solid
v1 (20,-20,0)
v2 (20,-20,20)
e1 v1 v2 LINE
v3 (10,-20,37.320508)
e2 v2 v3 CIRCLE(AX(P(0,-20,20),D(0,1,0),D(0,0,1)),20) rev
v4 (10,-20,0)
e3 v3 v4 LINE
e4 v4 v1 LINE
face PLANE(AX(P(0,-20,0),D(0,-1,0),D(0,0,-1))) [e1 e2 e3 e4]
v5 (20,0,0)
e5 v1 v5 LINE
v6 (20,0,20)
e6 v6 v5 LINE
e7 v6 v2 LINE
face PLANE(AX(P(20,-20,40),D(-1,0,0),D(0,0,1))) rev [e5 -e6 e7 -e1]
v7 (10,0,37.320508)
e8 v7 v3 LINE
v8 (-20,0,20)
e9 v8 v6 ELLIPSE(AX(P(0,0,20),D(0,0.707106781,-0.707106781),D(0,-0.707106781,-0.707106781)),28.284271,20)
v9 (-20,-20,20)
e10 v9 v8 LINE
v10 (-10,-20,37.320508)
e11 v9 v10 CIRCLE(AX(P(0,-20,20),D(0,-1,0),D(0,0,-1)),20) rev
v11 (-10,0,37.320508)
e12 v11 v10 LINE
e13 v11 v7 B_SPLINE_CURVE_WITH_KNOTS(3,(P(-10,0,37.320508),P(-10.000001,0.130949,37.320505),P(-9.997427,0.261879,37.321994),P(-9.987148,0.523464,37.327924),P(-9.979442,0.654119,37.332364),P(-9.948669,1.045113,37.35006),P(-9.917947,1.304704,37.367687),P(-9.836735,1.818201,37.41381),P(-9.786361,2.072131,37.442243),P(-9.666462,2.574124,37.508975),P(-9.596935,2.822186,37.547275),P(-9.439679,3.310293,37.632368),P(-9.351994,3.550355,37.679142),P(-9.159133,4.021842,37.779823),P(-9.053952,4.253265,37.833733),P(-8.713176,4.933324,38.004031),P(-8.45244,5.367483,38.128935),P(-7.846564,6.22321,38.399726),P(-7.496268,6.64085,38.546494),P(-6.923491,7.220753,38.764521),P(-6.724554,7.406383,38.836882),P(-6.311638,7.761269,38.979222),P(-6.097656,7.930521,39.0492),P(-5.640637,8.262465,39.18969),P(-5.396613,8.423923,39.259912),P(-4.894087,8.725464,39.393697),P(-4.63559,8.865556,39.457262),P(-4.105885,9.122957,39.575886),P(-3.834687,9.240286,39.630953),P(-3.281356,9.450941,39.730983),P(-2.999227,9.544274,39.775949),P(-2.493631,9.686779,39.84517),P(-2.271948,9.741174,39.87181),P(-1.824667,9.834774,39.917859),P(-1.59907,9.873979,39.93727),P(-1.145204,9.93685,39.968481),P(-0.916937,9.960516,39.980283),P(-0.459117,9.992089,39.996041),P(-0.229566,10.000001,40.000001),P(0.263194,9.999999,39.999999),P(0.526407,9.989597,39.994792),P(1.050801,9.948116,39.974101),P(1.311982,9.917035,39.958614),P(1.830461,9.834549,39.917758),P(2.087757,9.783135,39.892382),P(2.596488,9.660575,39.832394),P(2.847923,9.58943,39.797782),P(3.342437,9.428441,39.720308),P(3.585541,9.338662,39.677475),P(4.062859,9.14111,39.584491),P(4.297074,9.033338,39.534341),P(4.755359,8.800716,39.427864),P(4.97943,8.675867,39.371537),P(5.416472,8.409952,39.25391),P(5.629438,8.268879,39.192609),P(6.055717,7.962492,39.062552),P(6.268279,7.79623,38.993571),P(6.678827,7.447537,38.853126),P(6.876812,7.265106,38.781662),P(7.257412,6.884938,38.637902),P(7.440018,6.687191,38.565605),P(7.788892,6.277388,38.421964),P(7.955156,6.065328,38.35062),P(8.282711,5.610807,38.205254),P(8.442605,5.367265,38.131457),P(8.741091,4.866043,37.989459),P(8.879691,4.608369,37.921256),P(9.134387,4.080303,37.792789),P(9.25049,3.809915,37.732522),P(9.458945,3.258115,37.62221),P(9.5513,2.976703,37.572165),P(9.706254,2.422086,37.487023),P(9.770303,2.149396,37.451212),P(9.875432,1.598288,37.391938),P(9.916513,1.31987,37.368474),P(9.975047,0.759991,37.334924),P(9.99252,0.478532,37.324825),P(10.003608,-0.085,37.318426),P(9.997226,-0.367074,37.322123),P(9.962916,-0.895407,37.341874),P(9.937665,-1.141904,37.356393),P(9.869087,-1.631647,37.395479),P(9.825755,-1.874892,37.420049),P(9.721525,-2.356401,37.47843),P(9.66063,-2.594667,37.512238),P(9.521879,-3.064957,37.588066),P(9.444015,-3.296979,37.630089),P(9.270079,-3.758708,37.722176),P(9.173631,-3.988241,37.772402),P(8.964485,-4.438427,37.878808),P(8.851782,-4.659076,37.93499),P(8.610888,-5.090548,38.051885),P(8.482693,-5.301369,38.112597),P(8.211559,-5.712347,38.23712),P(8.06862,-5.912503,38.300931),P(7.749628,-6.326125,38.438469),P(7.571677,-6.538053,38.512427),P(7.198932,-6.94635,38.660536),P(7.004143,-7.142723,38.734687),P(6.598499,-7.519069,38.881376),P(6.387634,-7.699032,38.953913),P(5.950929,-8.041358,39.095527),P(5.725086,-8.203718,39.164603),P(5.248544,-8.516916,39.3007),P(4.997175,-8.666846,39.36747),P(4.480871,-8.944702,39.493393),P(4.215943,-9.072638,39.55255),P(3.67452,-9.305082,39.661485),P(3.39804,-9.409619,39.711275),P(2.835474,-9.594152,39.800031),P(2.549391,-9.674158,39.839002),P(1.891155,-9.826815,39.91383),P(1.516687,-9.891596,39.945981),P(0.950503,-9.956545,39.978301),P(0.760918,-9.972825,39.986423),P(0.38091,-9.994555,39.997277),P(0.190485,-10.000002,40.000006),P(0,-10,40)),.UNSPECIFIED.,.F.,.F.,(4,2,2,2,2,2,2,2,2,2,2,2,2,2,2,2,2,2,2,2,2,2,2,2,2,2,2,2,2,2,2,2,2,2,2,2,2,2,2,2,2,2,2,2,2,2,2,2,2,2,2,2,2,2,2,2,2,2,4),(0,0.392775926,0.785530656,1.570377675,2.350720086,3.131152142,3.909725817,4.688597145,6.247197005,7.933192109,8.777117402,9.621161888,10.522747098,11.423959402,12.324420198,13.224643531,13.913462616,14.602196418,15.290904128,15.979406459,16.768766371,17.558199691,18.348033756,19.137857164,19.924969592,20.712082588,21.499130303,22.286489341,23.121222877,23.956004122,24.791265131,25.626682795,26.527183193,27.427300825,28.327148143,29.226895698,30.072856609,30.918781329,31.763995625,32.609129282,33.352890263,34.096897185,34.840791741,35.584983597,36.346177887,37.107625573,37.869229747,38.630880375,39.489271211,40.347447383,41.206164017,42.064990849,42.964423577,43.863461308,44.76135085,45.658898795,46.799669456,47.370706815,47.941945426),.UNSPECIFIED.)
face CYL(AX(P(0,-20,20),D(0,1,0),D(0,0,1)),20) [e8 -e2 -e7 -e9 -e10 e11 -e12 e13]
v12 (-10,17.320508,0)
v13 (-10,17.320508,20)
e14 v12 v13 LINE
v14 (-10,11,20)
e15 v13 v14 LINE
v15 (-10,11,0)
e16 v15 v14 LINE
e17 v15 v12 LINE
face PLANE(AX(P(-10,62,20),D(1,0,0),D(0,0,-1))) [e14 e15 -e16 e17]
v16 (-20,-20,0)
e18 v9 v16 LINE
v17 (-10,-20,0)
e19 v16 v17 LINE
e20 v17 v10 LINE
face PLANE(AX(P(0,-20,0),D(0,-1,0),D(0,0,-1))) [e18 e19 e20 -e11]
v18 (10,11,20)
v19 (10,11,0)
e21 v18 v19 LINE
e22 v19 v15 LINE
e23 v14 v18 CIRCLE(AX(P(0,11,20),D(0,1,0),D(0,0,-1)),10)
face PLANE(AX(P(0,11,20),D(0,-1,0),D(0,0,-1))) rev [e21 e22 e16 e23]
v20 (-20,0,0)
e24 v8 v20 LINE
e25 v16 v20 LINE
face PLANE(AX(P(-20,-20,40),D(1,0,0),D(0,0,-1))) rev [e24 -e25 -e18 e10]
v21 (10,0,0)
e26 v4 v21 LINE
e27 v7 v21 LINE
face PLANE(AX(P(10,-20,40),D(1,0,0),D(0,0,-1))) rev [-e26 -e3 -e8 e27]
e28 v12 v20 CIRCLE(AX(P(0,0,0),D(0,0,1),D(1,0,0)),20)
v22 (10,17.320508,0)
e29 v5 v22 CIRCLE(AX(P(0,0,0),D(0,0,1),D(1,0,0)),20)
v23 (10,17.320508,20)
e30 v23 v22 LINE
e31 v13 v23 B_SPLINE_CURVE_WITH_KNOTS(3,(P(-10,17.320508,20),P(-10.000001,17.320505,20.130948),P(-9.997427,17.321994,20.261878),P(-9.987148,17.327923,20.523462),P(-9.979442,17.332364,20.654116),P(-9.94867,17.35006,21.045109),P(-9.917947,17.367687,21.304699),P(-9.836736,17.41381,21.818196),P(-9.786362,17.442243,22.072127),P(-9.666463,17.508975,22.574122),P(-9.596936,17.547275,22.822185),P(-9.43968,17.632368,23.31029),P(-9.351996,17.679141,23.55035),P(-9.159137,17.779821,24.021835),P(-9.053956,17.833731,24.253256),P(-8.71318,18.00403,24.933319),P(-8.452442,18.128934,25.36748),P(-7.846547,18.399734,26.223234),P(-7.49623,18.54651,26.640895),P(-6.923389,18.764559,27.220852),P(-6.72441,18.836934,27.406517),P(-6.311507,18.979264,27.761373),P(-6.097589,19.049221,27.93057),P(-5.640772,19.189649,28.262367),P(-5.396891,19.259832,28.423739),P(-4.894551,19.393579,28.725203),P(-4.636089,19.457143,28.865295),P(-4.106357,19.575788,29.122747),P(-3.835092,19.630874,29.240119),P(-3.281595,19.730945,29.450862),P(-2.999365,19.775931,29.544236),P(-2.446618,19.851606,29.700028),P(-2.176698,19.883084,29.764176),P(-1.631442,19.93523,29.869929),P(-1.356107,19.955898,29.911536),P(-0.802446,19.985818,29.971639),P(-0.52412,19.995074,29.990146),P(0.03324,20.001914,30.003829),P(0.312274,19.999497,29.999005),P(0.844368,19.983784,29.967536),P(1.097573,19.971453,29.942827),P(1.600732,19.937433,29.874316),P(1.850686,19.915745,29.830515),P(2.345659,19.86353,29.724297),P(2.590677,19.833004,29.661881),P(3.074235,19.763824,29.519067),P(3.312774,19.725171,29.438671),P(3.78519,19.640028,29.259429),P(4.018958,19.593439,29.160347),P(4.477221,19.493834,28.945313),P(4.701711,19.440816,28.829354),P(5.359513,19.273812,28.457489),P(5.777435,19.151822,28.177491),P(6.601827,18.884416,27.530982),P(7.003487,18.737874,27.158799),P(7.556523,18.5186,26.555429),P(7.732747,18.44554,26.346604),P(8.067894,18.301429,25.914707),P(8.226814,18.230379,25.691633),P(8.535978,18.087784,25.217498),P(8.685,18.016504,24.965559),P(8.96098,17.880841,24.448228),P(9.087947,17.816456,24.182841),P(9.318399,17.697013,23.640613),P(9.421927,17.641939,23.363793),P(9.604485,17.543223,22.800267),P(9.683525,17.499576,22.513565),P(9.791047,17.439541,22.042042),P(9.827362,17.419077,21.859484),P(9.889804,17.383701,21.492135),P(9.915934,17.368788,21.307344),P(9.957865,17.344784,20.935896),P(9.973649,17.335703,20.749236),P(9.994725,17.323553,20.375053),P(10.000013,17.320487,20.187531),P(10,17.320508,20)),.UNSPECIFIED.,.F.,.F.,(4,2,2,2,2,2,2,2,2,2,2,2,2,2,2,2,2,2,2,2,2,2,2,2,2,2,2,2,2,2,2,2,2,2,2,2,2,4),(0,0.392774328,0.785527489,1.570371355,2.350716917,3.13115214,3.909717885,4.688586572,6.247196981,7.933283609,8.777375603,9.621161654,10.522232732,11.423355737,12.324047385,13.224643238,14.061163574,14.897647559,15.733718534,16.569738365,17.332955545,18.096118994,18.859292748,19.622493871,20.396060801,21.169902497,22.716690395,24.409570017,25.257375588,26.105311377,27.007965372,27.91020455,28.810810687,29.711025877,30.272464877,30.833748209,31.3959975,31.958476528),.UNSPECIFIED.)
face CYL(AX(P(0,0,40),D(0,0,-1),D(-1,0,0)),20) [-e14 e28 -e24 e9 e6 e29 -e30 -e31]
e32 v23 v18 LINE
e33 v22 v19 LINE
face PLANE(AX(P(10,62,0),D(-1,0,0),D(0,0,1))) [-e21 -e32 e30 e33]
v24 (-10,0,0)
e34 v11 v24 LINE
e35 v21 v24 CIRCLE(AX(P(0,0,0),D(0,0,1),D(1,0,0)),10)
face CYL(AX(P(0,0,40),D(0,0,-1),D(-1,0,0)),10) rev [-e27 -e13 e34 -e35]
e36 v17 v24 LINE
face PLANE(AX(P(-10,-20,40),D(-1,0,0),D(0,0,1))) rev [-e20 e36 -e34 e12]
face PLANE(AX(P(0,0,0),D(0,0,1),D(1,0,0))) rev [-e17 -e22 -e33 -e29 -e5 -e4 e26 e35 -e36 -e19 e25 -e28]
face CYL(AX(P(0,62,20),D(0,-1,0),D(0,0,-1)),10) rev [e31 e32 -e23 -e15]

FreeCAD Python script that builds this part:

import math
import FreeCAD as App
import Part
import Sketcher
Q = App.Units.Quantity


def add_polygon(sketch, points):
    """Adds a closed chain of lines whose ends are joined by coincident constraints."""
    first, n = sketch.GeometryCount, len(points)
    for a, b in zip(points, points[1:] + points[:1]):
        sketch.addGeometry(Part.LineSegment(App.Vector(*a, 0), App.Vector(*b, 0)), False)
    for i in range(n):
        sketch.addConstraint(Sketcher.Constraint("Coincident", first + i, 2, first + (i + 1) % n, 1))

doc = App.newDocument("Part")
params = doc.addObject("Spreadsheet::Sheet", "Params")
for row, (alias, value) in enumerate([
    ("sketch1_radius", "20 mm"),
    ("sketch1_radius2", "10 mm"),
    ("pad1_length", "40 mm"),
    ("sketch2_width", "10 mm"),
    ("sketch2_height", "40 mm"),
    ("pad2_length", "20 mm"),
    ("sketch3_radius", "20 mm"),
    ("sketch4_radius", "10 mm"),
    ("pocket2_length", "51 mm"),
], start=1):
    params.set(f"A{row}", alias)
    params.set(f"B{row}", "=" + value)
    params.setAlias(f"B{row}", alias)

body = doc.addObject("PartDesign::Body", "Body")

# Sketch on XY plane
sketch1 = body.newObject("Sketcher::SketchObject", "Sketch")
sketch1.AttachmentSupport = (doc.getObject("XY_Plane"), [""])
sketch1.MapMode = "FlatFace"
sketch1.addGeometry(Part.ArcOfCircle(Part.Circle(App.Vector(0, 0, 0), App.Vector(0, 0, 1), 20), math.radians(0), math.radians(180)), False)
sketch1.addGeometry(Part.LineSegment(App.Vector(-20, 0, 0), App.Vector(-10, 0, 0)), False)
sketch1.addGeometry(Part.ArcOfCircle(Part.Circle(App.Vector(0, 0, 0), App.Vector(0, 0, 1), 10), math.radians(0), math.radians(180)), False)
sketch1.addGeometry(Part.LineSegment(App.Vector(10, 0, 0), App.Vector(20, 0, 0)), False)
sketch1.addConstraint(Sketcher.Constraint("Coincident", 0, 2, 1, 1))
sketch1.addConstraint(Sketcher.Constraint("Coincident", 1, 2, 2, 2))
sketch1.addConstraint(Sketcher.Constraint("Coincident", 2, 1, 3, 1))
sketch1.addConstraint(Sketcher.Constraint("Coincident", 3, 2, 0, 1))
sketch1.addConstraint(Sketcher.Constraint("Horizontal", 1))
sketch1.addConstraint(Sketcher.Constraint("Horizontal", 3))
sketch1.addConstraint(Sketcher.Constraint("Coincident", 0, 3, -1, 1))
sketch1.addConstraint(Sketcher.Constraint("Coincident", 2, 3, -1, 1))
sketch1.addConstraint(Sketcher.Constraint("PointOnObject", 0, 2, -1))
sketch1.addConstraint(Sketcher.Constraint("PointOnObject", 2, 1, -1))
sketch1.addConstraint(Sketcher.Constraint("Radius", 0, Q("20 mm")))
sketch1.addConstraint(Sketcher.Constraint("Radius", 2, Q("10 mm")))
sketch1.setExpression("Constraints[10]", "Params.sketch1_radius")
sketch1.setExpression("Constraints[11]", "Params.sketch1_radius2")
pad1 = body.newObject("PartDesign::Pad", "Pad")
pad1.Profile = sketch1
pad1.setExpression("Length", "Params.pad1_length")

# Sketch on XZ plane
sketch2 = body.newObject("Sketcher::SketchObject", "Sketch001")
sketch2.AttachmentSupport = (doc.getObject("XZ_Plane"), [""])
sketch2.MapMode = "FlatFace"
add_polygon(sketch2, [(-20, 40), (-20, 0), (-10, 0), (-10, 40)])  # lines 0-3
add_polygon(sketch2, [(10, 40), (10, 0), (20, 0), (20, 40)])  # lines 4-7
sketch2.addConstraint(Sketcher.Constraint("Vertical", 0))
sketch2.addConstraint(Sketcher.Constraint("Horizontal", 1))
sketch2.addConstraint(Sketcher.Constraint("Vertical", 2))
sketch2.addConstraint(Sketcher.Constraint("Horizontal", 3))
sketch2.addConstraint(Sketcher.Constraint("Vertical", 4))
sketch2.addConstraint(Sketcher.Constraint("Horizontal", 5))
sketch2.addConstraint(Sketcher.Constraint("Vertical", 6))
sketch2.addConstraint(Sketcher.Constraint("Horizontal", 7))
sketch2.addConstraint(Sketcher.Constraint("Symmetric", 1, 2, 4, 2, -1, 1))
sketch2.addConstraint(Sketcher.Constraint("Symmetric", 0, 2, 5, 2, -2))
sketch2.addConstraint(Sketcher.Constraint("Horizontal", 3, 2, 6, 2))
sketch2.addConstraint(Sketcher.Constraint("DistanceX", 1, 1, 1, 2, Q("10 mm")))
sketch2.addConstraint(Sketcher.Constraint("DistanceY", 0, 2, 0, 1, Q("40 mm")))
sketch2.addConstraint(Sketcher.Constraint("DistanceX", 0, 2, -1, 1, Q("20 mm")))
sketch2.setExpression("Constraints[19]", "Params.sketch2_width")
sketch2.setExpression("Constraints[20]", "Params.sketch2_height")
pad2 = body.newObject("PartDesign::Pad", "Pad001")
pad2.Profile = sketch2
pad2.setExpression("Length", "Params.pad2_length")

# Sketch on XZ plane
sketch3 = body.newObject("Sketcher::SketchObject", "Sketch002")
sketch3.AttachmentSupport = (doc.getObject("XZ_Plane"), [""])
sketch3.MapMode = "FlatFace"
sketch3.addGeometry(Part.ArcOfCircle(Part.Circle(App.Vector(0, 20, 0), App.Vector(0, 0, 1), 20), math.radians(90), math.radians(180)), False)
sketch3.addGeometry(Part.LineSegment(App.Vector(-20, 20, 0), App.Vector(-20, 40, 0)), False)
sketch3.addGeometry(Part.LineSegment(App.Vector(-20, 40, 0), App.Vector(0, 40, 0)), False)
sketch3.addGeometry(Part.ArcOfCircle(Part.Circle(App.Vector(0, 20, 0), App.Vector(0, 0, 1), 20), math.radians(0), math.radians(90)), False)
sketch3.addGeometry(Part.LineSegment(App.Vector(0, 40, 0), App.Vector(20, 40, 0)), False)
sketch3.addGeometry(Part.LineSegment(App.Vector(20, 40, 0), App.Vector(20, 20, 0)), False)
sketch3.addConstraint(Sketcher.Constraint("Tangent", 0, 2, 1, 1))
sketch3.addConstraint(Sketcher.Constraint("Coincident", 1, 2, 2, 1))
sketch3.addConstraint(Sketcher.Constraint("Tangent", 2, 2, 0, 1))
sketch3.addConstraint(Sketcher.Constraint("Tangent", 3, 2, 4, 1))
sketch3.addConstraint(Sketcher.Constraint("Coincident", 4, 2, 5, 1))
sketch3.addConstraint(Sketcher.Constraint("Tangent", 5, 2, 3, 1))
sketch3.addConstraint(Sketcher.Constraint("Vertical", 1))
sketch3.addConstraint(Sketcher.Constraint("Horizontal", 2))
sketch3.addConstraint(Sketcher.Constraint("Horizontal", 4))
sketch3.addConstraint(Sketcher.Constraint("Vertical", 5))
sketch3.addConstraint(Sketcher.Constraint("Coincident", 3, 3, 0, 3))
sketch3.addConstraint(Sketcher.Constraint("Equal", 0, 3))
sketch3.addConstraint(Sketcher.Constraint("PointOnObject", 0, 3, -2))
sketch3.addConstraint(Sketcher.Constraint("Radius", 0, Q("20 mm")))
sketch3.addConstraint(Sketcher.Constraint("DistanceY", -1, 1, 0, 3, Q("20 mm")))
sketch3.setExpression("Constraints[13]", "Params.sketch3_radius")
pocket1 = body.newObject("PartDesign::Pocket", "Pocket")
pocket1.Profile = sketch3
pocket1.Type = "ThroughAll"
pocket1.Midplane = True

# Sketch on XZ plane
sketch4 = body.newObject("Sketcher::SketchObject", "Sketch003")
sketch4.AttachmentSupport = (doc.getObject("XZ_Plane"), [""])
sketch4.MapMode = "FlatFace"
sketch4.AttachmentOffset = App.Placement(App.Vector(0, 0, -11), App.Rotation())
sketch4.addGeometry(Part.LineSegment(App.Vector(-10, 0, 0), App.Vector(-10, 20, 0)), False)
sketch4.addGeometry(Part.ArcOfCircle(Part.Circle(App.Vector(0, 20, 0), App.Vector(0, 0, 1), 10), math.radians(0), math.radians(180)), False)
sketch4.addGeometry(Part.LineSegment(App.Vector(10, 20, 0), App.Vector(10, 0, 0)), False)
sketch4.addGeometry(Part.LineSegment(App.Vector(10, 0, 0), App.Vector(-10, 0, 0)), False)
sketch4.addConstraint(Sketcher.Constraint("Tangent", 0, 2, 1, 2))
sketch4.addConstraint(Sketcher.Constraint("Tangent", 1, 1, 2, 1))
sketch4.addConstraint(Sketcher.Constraint("Coincident", 2, 2, 3, 1))
sketch4.addConstraint(Sketcher.Constraint("Coincident", 3, 2, 0, 1))
sketch4.addConstraint(Sketcher.Constraint("Vertical", 0))
sketch4.addConstraint(Sketcher.Constraint("Vertical", 2))
sketch4.addConstraint(Sketcher.Constraint("Horizontal", 3))
sketch4.addConstraint(Sketcher.Constraint("Symmetric", 2, 2, 3, 2, -1, 1))
sketch4.addConstraint(Sketcher.Constraint("Equal", 3, 0))
sketch4.addConstraint(Sketcher.Constraint("Radius", 1, Q("10 mm")))
sketch4.setExpression("Constraints[9]", "Params.sketch4_radius")
pocket2 = body.newObject("PartDesign::Pocket", "Pocket001")
pocket2.Profile = sketch4
pocket2.setExpression("Length", "Params.pocket2_length")

doc.recompute()
